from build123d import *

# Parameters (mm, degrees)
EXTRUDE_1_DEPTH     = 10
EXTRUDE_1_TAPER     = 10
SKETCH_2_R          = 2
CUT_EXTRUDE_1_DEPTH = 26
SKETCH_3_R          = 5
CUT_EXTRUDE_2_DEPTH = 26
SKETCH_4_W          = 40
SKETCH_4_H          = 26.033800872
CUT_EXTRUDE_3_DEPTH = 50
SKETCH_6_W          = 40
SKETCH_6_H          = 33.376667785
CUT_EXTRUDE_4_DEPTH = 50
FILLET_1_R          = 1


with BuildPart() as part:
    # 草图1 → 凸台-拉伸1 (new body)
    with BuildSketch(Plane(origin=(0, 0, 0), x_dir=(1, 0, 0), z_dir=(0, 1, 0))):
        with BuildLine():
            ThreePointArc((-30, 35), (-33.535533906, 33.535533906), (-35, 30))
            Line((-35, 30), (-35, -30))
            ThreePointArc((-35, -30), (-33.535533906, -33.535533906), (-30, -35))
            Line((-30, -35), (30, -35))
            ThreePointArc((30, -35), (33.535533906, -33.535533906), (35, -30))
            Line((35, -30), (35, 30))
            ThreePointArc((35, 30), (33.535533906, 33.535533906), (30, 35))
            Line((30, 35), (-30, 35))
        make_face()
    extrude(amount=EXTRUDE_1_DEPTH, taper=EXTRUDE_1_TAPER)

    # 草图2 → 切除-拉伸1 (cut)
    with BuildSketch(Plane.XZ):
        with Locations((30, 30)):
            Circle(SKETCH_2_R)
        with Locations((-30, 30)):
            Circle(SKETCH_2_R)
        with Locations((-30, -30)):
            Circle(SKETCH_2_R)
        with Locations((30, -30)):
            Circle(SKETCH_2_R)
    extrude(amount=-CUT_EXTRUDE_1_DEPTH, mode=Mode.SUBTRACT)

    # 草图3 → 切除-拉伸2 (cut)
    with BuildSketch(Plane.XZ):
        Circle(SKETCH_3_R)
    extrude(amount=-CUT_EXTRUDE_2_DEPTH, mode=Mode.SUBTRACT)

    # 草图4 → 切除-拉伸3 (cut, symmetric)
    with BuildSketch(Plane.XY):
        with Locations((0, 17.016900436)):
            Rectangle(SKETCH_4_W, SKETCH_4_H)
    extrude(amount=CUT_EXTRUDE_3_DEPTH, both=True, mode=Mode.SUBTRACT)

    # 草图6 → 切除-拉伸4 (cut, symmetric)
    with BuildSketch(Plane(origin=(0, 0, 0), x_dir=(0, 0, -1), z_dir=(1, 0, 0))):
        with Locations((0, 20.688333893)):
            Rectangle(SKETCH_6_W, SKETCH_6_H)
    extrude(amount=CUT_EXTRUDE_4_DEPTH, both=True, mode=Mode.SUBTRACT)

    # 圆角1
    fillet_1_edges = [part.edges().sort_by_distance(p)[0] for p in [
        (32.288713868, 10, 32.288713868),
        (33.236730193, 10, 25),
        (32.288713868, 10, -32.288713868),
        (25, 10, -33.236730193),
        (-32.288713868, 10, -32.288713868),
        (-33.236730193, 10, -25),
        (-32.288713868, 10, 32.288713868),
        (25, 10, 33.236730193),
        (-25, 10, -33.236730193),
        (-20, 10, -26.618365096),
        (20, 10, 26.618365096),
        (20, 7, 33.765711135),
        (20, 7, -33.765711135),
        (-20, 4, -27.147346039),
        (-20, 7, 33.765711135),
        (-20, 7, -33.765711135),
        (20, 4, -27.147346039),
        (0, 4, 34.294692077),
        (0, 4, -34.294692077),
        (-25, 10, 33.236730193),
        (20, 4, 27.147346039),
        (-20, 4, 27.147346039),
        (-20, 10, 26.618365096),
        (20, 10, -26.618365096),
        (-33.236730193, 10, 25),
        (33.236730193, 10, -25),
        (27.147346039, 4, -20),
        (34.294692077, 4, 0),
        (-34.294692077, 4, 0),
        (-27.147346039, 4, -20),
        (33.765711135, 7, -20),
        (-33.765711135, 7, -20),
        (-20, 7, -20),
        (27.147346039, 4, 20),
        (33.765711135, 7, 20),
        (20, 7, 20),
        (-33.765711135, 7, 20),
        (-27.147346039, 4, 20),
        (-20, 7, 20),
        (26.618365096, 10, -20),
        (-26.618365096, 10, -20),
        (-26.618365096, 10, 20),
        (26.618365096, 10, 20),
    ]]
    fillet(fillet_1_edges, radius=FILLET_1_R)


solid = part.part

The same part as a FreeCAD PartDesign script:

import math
import FreeCAD as App
import Part
import Sketcher
from FreeCAD import Vector
Q = App.Units.Quantity


def edges_at(feature, points):
    """Names of the edges that pass closest to the given points."""
    edges = feature.Shape.Edges
    near = lambda p: min(range(len(edges)), key=lambda i: edges[i].distToShape(Part.Vertex(*p))[0])
    return sorted({f"Edge{near(p) + 1}" for p in points})


def add_polygon(sketch, points):
    """Adds a closed chain of lines whose ends are joined by coincident constraints."""
    first, n = sketch.GeometryCount, len(points)
    for a, b in zip(points, points[1:] + points[:1]):
        sketch.addGeometry(Part.LineSegment(App.Vector(*a, 0), App.Vector(*b, 0)), False)
    for i in range(n):
        sketch.addConstraint(Sketcher.Constraint("Coincident", first + i, 2, first + (i + 1) % n, 1))

doc = App.newDocument("Part")
params = doc.addObject("Spreadsheet::Sheet", "Params")
for row, (alias, value) in enumerate([
    ("sketch1_radius", "5 mm"),
    ("sketch1_width", "60 mm"),
    ("pad1_length", "10 mm"),
    ("pad1_taper", "-10 deg"),
    ("sketch2_diameter", "4 mm"),
    ("pocket1_length", "26 mm"),
    ("sketch3_diameter", "10 mm"),
    ("pocket2_length", "26 mm"),
    ("sketch4_width", "40 mm"),
    ("pocket3_length", "100 mm"),
    ("sketch5_height", "40 mm"),
    ("pocket4_length", "100 mm"),
    ("fillet_radius", "1 mm"),
], start=1):
    params.set(f"A{row}", alias)
    params.set(f"B{row}", "=" + value)
    params.setAlias(f"B{row}", alias)

body = doc.addObject("PartDesign::Body", "Body")

# Sketch on XZ plane
sketch1 = doc.addObject("Sketcher::SketchObject", "Sketch")
body.addObject(sketch1)
sketch1.AttachmentSupport = (doc.XZ_Plane, [""])
sketch1.MapMode = "FlatFace"
sketch1.addGeometry(Part.ArcOfCircle(Part.Circle(Vector(-30, -30, 0), Vector(0, 0, 1), 5), math.radians(180), math.radians(270)), False)
sketch1.addGeometry(Part.LineSegment(Vector(-35, -30, 0), Vector(-35, 30, 0)), False)
sketch1.addGeometry(Part.ArcOfCircle(Part.Circle(Vector(-30, 30, 0), Vector(0, 0, 1), 5), math.radians(90), math.radians(180)), False)
sketch1.addGeometry(Part.LineSegment(Vector(-30, 35, 0), Vector(30, 35, 0)), False)
sketch1.addGeometry(Part.ArcOfCircle(Part.Circle(Vector(30, 30, 0), Vector(0, 0, 1), 5), math.radians(0), math.radians(90)), False)
sketch1.addGeometry(Part.LineSegment(Vector(35, 30, 0), Vector(35, -30, 0)), False)
sketch1.addGeometry(Part.ArcOfCircle(Part.Circle(Vector(30, -30, 0), Vector(0, 0, 1), 5), math.radians(-90), math.radians(0)), False)
sketch1.addGeometry(Part.LineSegment(Vector(30, -35, 0), Vector(-30, -35, 0)), False)
sketch1.addConstraint(Sketcher.Constraint("Tangent", 0, 1, 1, 1))
sketch1.addConstraint(Sketcher.Constraint("Tangent", 1, 2, 2, 2))
sketch1.addConstraint(Sketcher.Constraint("Tangent", 2, 1, 3, 1))
sketch1.addConstraint(Sketcher.Constraint("Tangent", 3, 2, 4, 2))
sketch1.addConstraint(Sketcher.Constraint("Tangent", 4, 1, 5, 1))
sketch1.addConstraint(Sketcher.Constraint("Tangent", 5, 2, 6, 2))
sketch1.addConstraint(Sketcher.Constraint("Tangent", 6, 1, 7, 1))
sketch1.addConstraint(Sketcher.Constraint("Tangent", 7, 2, 0, 2))
sketch1.addConstraint(Sketcher.Constraint("Vertical", 1))
sketch1.addConstraint(Sketcher.Constraint("Horizontal", 3))
sketch1.addConstraint(Sketcher.Constraint("Vertical", 5))
sketch1.addConstraint(Sketcher.Constraint("Horizontal", 7))
sketch1.addConstraint(Sketcher.Constraint("Equal", 0, 2))
sketch1.addConstraint(Sketcher.Constraint("Equal", 2, 4))
sketch1.addConstraint(Sketcher.Constraint("Equal", 4, 6))
sketch1.addConstraint(Sketcher.Constraint("Symmetric", 0, 3, 4, 3, -1, 1))
sketch1.addConstraint(Sketcher.Constraint("Equal", 7, 1))
sketch1.addConstraint(Sketcher.Constraint("Radius", 0, Q("5 mm")))
sketch1.addConstraint(Sketcher.Constraint("DistanceX", 3, 1, 3, 2, Q("60 mm")))
sketch1.setExpression("Constraints[17]", "Params.sketch1_radius")
sketch1.setExpression("Constraints[18]", "Params.sketch1_width")
pad1 = doc.addObject("PartDesign::Pad", "Pad")
body.addObject(pad1)
pad1.Profile = sketch1
pad1.setExpression("Length", "Params.pad1_length")
pad1.Reversed = True
pad1.setExpression("TaperAngle", "Params.pad1_taper")

# Sketch on XZ plane
sketch2 = doc.addObject("Sketcher::SketchObject", "Sketch001")
body.addObject(sketch2)
sketch2.AttachmentSupport = (doc.XZ_Plane, [""])
sketch2.MapMode = "FlatFace"
sketch2.addGeometry(Part.Circle(Vector(30, 30, 0), Vector(0, 0, 1), 2), False)
sketch2.addGeometry(Part.Circle(Vector(-30, 30, 0), Vector(0, 0, 1), 2), False)
sketch2.addGeometry(Part.Circle(Vector(-30, -30, 0), Vector(0, 0, 1), 2), False)
sketch2.addGeometry(Part.Circle(Vector(30, -30, 0), Vector(0, 0, 1), 2), False)
sketch2.addConstraint(Sketcher.Constraint("Equal", 0, 1))
sketch2.addConstraint(Sketcher.Constraint("Equal", 1, 2))
sketch2.addConstraint(Sketcher.Constraint("Equal", 2, 3))
sketch2.addConstraint(Sketcher.Constraint("Symmetric", 0, 3, 2, 3, -1, 1))
sketch2.addConstraint(Sketcher.Constraint("Symmetric", 1, 3, 3, 3, -1, 1))
sketch2.addConstraint(Sketcher.Constraint("Symmetric", 0, 3, 1, 3, -2))
sketch2.addConstraint(Sketcher.Constraint("Diameter", 0, Q("4 mm")))
sketch2.addConstraint(Sketcher.Constraint("DistanceX", -1, 1, 0, 3, Q("30 mm")))
sketch2.addConstraint(Sketcher.Constraint("DistanceY", -1, 1, 0, 3, Q("30 mm")))
sketch2.setExpression("Constraints[6]", "Params.sketch2_diameter")
pocket1 = doc.addObject("PartDesign::Pocket", "Pocket")
body.addObject(pocket1)
pocket1.Profile = sketch2
pocket1.setExpression("Length", "Params.pocket1_length")

# Sketch on XZ plane
sketch3 = doc.addObject("Sketcher::SketchObject", "Sketch002")
body.addObject(sketch3)
sketch3.AttachmentSupport = (doc.XZ_Plane, [""])
sketch3.MapMode = "FlatFace"
sketch3.addGeometry(Part.Circle(Vector(0, 0, 0), Vector(0, 0, 1), 5), False)
sketch3.addConstraint(Sketcher.Constraint("Coincident", 0, 3, -1, 1))
sketch3.addConstraint(Sketcher.Constraint("Diameter", 0, Q("10 mm")))
sketch3.setExpression("Constraints[1]", "Params.sketch3_diameter")
pocket2 = doc.addObject("PartDesign::Pocket", "Pocket001")
body.addObject(pocket2)
pocket2.Profile = sketch3
pocket2.setExpression("Length", "Params.pocket2_length")

# Sketch on XY plane
sketch4 = doc.addObject("Sketcher::SketchObject", "Sketch003")
body.addObject(sketch4)
sketch4.AttachmentSupport = (doc.XY_Plane, [""])
sketch4.MapMode = "FlatFace"
add_polygon(sketch4, [(-20, 30.033801), (-20, 4), (20, 4), (20, 30.033801)])  # lines 0-3
sketch4.addConstraint(Sketcher.Constraint("Vertical", 0))
sketch4.addConstraint(Sketcher.Constraint("Horizontal", 1))
sketch4.addConstraint(Sketcher.Constraint("Vertical", 2))
sketch4.addConstraint(Sketcher.Constraint("Horizontal", 3))
sketch4.addConstraint(Sketcher.Constraint("DistanceX", 1, 1, 1, 2, Q("40 mm")))
sketch4.addConstraint(Sketcher.Constraint("DistanceX", 0, 2, -1, 1, Q("20 mm")))
sketch4.addConstraint(Sketcher.Constraint("DistanceY", -1, 1, 0, 2, Q("4 mm")))
sketch4.addConstraint(Sketcher.Constraint("DistanceY", 0, 2, 0, 1, Q("26.033801 mm")))
sketch4.setExpression("Constraints[8]", "Params.sketch4_width")
pocket3 = doc.addObject("PartDesign::Pocket", "Pocket002")
body.addObject(pocket3)
pocket3.Profile = sketch4
pocket3.setExpression("Length", "Params.pocket3_length")
pocket3.Midplane = True

# Sketch on YZ plane
sketch5 = doc.addObject("Sketcher::SketchObject", "Sketch004")
body.addObject(sketch5)
sketch5.AttachmentSupport = (doc.YZ_Plane, [""])
sketch5.MapMode = "FlatFace"
add_polygon(sketch5, [(37.376668, 20), (4, 20), (4, -20), (37.376668, -20)])  # lines 0-3
sketch5.addConstraint(Sketcher.Constraint("Horizontal", 0))
sketch5.addConstraint(Sketcher.Constraint("Vertical", 1))
sketch5.addConstraint(Sketcher.Constraint("Horizontal", 2))
sketch5.addConstraint(Sketcher.Constraint("Vertical", 3))
sketch5.addConstraint(Sketcher.Constraint("DistanceY", 1, 2, 1, 1, Q("40 mm")))
sketch5.addConstraint(Sketcher.Constraint("DistanceX", -1, 1, 0, 2, Q("4 mm")))
sketch5.addConstraint(Sketcher.Constraint("DistanceY", -1, 1, 0, 2, Q("20 mm")))
sketch5.addConstraint(Sketcher.Constraint("DistanceX", 0, 2, 0, 1, Q("33.376668 mm")))
sketch5.setExpression("Constraints[8]", "Params.sketch5_height")
pocket4 = doc.addObject("PartDesign::Pocket", "Pocket003")
body.addObject(pocket4)
pocket4.Profile = sketch5
pocket4.setExpression("Length", "Params.pocket4_length")
pocket4.Midplane = True
doc.recompute()

fillet = doc.addObject("PartDesign::Fillet", "Fillet")
body.addObject(fillet)
fillet.Base = (pocket4, edges_at(pocket4, [
    (32.289, 10, 32.289),
    (33.237, 10, 25),
    (32.289, 10, -32.289),
    (25, 10, -33.237),
    (-32.289, 10, -32.289),
    (-33.237, 10, -25),
    (-32.289, 10, 32.289),
    (25, 10, 33.237),
    (-25, 10, -33.237),
    (-20, 10, -26.618),
    (20, 10, 26.618),
    (20, 7, 33.766),
    (20, 7, -33.766),
    (-20, 4, -27.147),
    (-20, 7, 33.766),
    (-20, 7, -33.766),
    (20, 4, -27.147),
    (0, 4, 34.295),
    (0, 4, -34.295),
    (-25, 10, 33.237),
    (20, 4, 27.147),
    (-20, 4, 27.147),
    (-20, 10, 26.618),
    (20, 10, -26.618),
    (-33.237, 10, 25),
    (33.237, 10, -25),
    (27.147, 4, -20),
    (34.295, 4, 0),
    (-34.295, 4, 0),
    (-27.147, 4, -20),
    (33.766, 7, -20),
    (-33.766, 7, -20),
    (-20, 7, -20),
    (27.147, 4, 20),
    (33.766, 7, 20),
    (20, 7, 20),
    (-33.766, 7, 20),
    (-27.147, 4, 20),
    (-20, 7, 20),
    (26.618, 10, -20),
    (-26.618, 10, -20),
    (-26.618, 10, 20),
    (26.618, 10, 20),
]))
fillet.setExpression("Radius", "Params.fillet_radius")

doc.recompute()
